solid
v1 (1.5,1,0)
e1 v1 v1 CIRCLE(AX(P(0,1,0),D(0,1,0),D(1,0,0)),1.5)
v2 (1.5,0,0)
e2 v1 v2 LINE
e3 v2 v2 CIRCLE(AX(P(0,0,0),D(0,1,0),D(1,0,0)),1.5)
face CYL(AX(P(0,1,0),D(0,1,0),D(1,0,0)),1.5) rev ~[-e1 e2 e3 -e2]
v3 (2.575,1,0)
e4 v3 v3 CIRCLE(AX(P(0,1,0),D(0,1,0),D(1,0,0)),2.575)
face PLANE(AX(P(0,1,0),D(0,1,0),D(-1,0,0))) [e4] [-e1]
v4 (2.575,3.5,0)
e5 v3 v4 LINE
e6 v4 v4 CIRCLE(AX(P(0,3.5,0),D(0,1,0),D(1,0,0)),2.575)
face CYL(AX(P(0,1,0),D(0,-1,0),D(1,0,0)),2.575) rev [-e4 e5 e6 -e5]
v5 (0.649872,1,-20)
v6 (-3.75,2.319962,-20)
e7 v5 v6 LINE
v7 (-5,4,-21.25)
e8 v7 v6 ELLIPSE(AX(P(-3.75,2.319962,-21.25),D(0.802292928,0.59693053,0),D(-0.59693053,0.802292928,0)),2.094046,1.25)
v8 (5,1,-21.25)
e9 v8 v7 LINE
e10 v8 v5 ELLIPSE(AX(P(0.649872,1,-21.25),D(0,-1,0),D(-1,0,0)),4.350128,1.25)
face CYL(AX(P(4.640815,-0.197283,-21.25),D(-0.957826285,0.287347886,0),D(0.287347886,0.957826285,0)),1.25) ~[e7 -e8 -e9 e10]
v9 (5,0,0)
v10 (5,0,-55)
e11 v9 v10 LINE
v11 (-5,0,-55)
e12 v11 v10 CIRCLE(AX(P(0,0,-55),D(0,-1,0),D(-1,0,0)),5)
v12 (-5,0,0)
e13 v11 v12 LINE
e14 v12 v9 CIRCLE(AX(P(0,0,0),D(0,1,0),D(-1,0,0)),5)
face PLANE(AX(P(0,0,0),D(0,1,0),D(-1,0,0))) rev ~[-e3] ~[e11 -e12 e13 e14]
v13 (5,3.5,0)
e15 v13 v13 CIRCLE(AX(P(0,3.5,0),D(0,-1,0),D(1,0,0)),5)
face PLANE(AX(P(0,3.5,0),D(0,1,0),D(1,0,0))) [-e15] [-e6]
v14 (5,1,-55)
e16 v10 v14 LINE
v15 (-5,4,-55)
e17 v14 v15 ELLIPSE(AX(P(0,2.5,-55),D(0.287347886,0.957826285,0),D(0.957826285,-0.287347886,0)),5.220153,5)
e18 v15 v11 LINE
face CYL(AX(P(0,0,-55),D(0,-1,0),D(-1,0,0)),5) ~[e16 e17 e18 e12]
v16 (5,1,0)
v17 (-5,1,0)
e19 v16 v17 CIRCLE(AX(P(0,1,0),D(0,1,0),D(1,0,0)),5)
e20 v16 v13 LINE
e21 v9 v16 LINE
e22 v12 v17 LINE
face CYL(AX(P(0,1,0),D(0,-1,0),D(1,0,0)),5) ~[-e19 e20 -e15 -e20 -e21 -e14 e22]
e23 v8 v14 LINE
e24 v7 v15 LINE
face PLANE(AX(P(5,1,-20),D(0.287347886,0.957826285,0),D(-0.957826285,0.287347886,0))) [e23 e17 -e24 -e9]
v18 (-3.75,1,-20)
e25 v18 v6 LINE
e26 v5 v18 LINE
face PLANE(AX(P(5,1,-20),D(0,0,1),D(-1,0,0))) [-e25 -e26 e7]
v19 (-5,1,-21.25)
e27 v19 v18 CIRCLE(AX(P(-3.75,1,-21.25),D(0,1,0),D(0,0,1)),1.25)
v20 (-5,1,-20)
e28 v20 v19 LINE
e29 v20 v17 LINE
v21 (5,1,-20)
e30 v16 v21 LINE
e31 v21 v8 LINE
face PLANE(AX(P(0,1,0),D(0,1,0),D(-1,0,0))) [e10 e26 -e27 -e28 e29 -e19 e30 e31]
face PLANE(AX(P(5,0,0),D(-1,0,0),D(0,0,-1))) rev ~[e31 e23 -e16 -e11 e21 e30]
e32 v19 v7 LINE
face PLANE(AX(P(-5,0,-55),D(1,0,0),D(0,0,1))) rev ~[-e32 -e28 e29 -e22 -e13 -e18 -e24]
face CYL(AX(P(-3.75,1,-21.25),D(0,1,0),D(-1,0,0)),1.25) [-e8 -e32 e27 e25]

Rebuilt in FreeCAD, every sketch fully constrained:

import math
import FreeCAD as App
import Part
import Sketcher
from FreeCAD import Vector


def edges_at(feature, points):
    """Names of the edges that pass closest to the given points."""
    edges = feature.Shape.Edges
    near = lambda p: min(range(len(edges)), key=lambda i: edges[i].distToShape(Part.Vertex(*p))[0])
    return sorted({f"Edge{near(p) + 1}" for p in points})


def add_polygon(sketch, points):
    """Adds a closed chain of lines whose ends are joined by coincident constraints."""
    first, n = sketch.GeometryCount, len(points)
    for a, b in zip(points, points[1:] + points[:1]):
        sketch.addGeometry(Part.LineSegment(App.Vector(*a, 0), App.Vector(*b, 0)), False)
    for i in range(n):
        sketch.addConstraint(Sketcher.Constraint("Coincident", first + i, 2, first + (i + 1) % n, 1))

doc = App.newDocument("Part")
params = doc.addObject("Spreadsheet::Sheet", "Params")
for row, (alias, value) in enumerate([
    ("sketch1_radius", "5 mm"),
    ("sketch1_height", "55 mm"),
    ("pad1_length", "1 mm"),
    ("sketch2_diameter", "5.15 mm"),
    ("sketch2_diameter2", "10 mm"),
    ("pad2_length", "2.5 mm"),
    ("sketch3_diameter", "3 mm"),
    ("pocket1_length", "2.5 mm"),
    ("sketch4_radius", "5 mm"),
    ("sketch4_height", "35 mm"),
    ("pad3_length", "3 mm"),
    ("sketch5_width", "10 mm"),
    ("sketch5_height", "3 mm"),
    ("pocket2_length", "47 mm"),
    ("fillet_radius", "1.25 mm"),
], start=1):
    params.set(f"A{row}", alias)
    params.set(f"B{row}", "=" + value)
    params.setAlias(f"B{row}", alias)

body = doc.addObject("PartDesign::Body", "Body")

sketch1 = body.newObject("Sketcher::SketchObject", "Sketch")
sketch1.AttachmentSupport = (doc.getObject("XZ_Plane"), [""])
sketch1.MapMode = "FlatFace"
sketch1.addGeometry([
    Part.ArcOfCircle(Part.Circle(Vector(0, 0, 0), Vector(0, 0, 1), 5), math.radians(0), math.radians(180)),
    Part.LineSegment(Vector(5, 0, 0), Vector(5, -55, 0)),
    Part.ArcOfCircle(Part.Circle(Vector(0, -55, 0), Vector(0, 0, 1), 5), math.radians(180), math.radians(360)),
    Part.LineSegment(Vector(-5, -55, 0), Vector(-5, 0, 0)),
], False)
sketch1.addConstraint([
    Sketcher.Constraint("Tangent", 0, 1, 1, 1),
    Sketcher.Constraint("Tangent", 1, 2, 2, 2),
    Sketcher.Constraint("Tangent", 2, 1, 3, 1),
    Sketcher.Constraint("Tangent", 3, 2, 0, 2),
    Sketcher.Constraint("Vertical", 1),
    Sketcher.Constraint("Vertical", 3),
    Sketcher.Constraint("Coincident", 0, 3, -1, 1),
    Sketcher.Constraint("Radius", 0, 5.0),
    Sketcher.Constraint("DistanceY", 1, 2, 1, 1, 55.0),
])
sketch1.setExpression("Constraints[7]", "Params.sketch1_radius")
sketch1.setExpression("Constraints[8]", "Params.sketch1_height")
pad1 = body.newObject("PartDesign::Pad", "Pad")
pad1.Profile = sketch1
pad1.setExpression("Length", "Params.pad1_length")
pad1.Reversed = True

sketch2 = body.newObject("Sketcher::SketchObject", "Sketch001")
sketch2.AttachmentSupport = (doc.getObject("XZ_Plane"), [""])
sketch2.MapMode = "FlatFace"
sketch2.AttachmentOffset = App.Placement(Vector(0, 0, -1), App.Rotation())
sketch2.addGeometry([
    Part.Circle(Vector(0, 0, 0), Vector(0, 0, 1), 5),
    Part.Circle(Vector(0, 0, 0), Vector(0, 0, 1), 2.575),
], False)
sketch2.addConstraint([
    Sketcher.Constraint("Coincident", 0, 3, -1, 1),
    Sketcher.Constraint("Coincident", 1, 3, -1, 1),
    Sketcher.Constraint("Diameter", 1, 5.15),
    Sketcher.Constraint("Diameter", 0, 10.0),
])
sketch2.setExpression("Constraints[2]", "Params.sketch2_diameter")
sketch2.setExpression("Constraints[3]", "Params.sketch2_diameter2")
pad2 = body.newObject("PartDesign::Pad", "Pad001")
pad2.Profile = sketch2
pad2.setExpression("Length", "Params.pad2_length")
pad2.Reversed = True

sketch3 = body.newObject("Sketcher::SketchObject", "Sketch002")
sketch3.AttachmentSupport = (doc.getObject("XZ_Plane"), [""])
sketch3.MapMode = "FlatFace"
sketch3.AttachmentOffset = App.Placement(Vector(0, 0, -1), App.Rotation())
sketch3.addGeometry(Part.Circle(Vector(0, 0, 0), Vector(0, 0, 1), 1.5), False)
sketch3.addConstraint([
    Sketcher.Constraint("Coincident", 0, 3, -1, 1),
    Sketcher.Constraint("Diameter", 0, 3.0),
])
sketch3.setExpression("Constraints[1]", "Params.sketch3_diameter")
pocket1 = body.newObject("PartDesign::Pocket", "Pocket")
pocket1.Profile = sketch3
pocket1.setExpression("Length", "Params.pocket1_length")
pocket1.Reversed = True

sketch4 = body.newObject("Sketcher::SketchObject", "Sketch003")
sketch4.AttachmentSupport = (doc.getObject("XZ_Plane"), [""])
sketch4.MapMode = "FlatFace"
sketch4.AttachmentOffset = App.Placement(Vector(0, 0, -1), App.Rotation())
sketch4.addGeometry([
    Part.ArcOfCircle(Part.Circle(Vector(0, -55, 0), Vector(0, 0, 1), 5), math.radians(180), math.radians(360)),
    Part.LineSegment(Vector(-5, -55, 0), Vector(-5, -20, 0)),
    Part.LineSegment(Vector(-5, -20, 0), Vector(5, -20, 0)),
    Part.LineSegment(Vector(5, -20, 0), Vector(5, -55, 0)),
], False)
sketch4.addConstraint([
    Sketcher.Constraint("Tangent", 0, 1, 1, 1),
    Sketcher.Constraint("Coincident", 1, 2, 2, 1),
    Sketcher.Constraint("Coincident", 2, 2, 3, 1),
    Sketcher.Constraint("Tangent", 3, 2, 0, 2),
    Sketcher.Constraint("Vertical", 1),
    Sketcher.Constraint("Horizontal", 2),
    Sketcher.Constraint("Vertical", 3),
    Sketcher.Constraint("PointOnObject", 0, 3, -2),
    Sketcher.Constraint("Radius", 0, 5.0),
    Sketcher.Constraint("DistanceY", 1, 1, 1, 2, 35.0),
    Sketcher.Constraint("DistanceY", 0, 3, -1, 1, 55.0),
])
sketch4.setExpression("Constraints[8]", "Params.sketch4_radius")
sketch4.setExpression("Constraints[9]", "Params.sketch4_height")
pad3 = body.newObject("PartDesign::Pad", "Pad002")
pad3.Profile = sketch4
pad3.setExpression("Length", "Params.pad3_length")
pad3.Reversed = True

sketch5 = body.newObject("Sketcher::SketchObject", "Sketch004")
sketch5.AttachmentSupport = (doc.getObject("XY_Plane"), [""])
sketch5.MapMode = "FlatFace"
sketch5.AttachmentOffset = App.Placement(Vector(0, 0, -20), App.Rotation())
add_polygon(sketch5, [(5, 4), (-5, 4), (5, 1)])
sketch5.addConstraint([
    Sketcher.Constraint("Horizontal", 0),
    Sketcher.Constraint("Vertical", 2),
    Sketcher.Constraint("DistanceX", 0, 2, 0, 1, 10.0),
    Sketcher.Constraint("DistanceY", 2, 1, 2, 2, 3.0),
    Sketcher.Constraint("DistanceX", 0, 2, -1, 1, 5.0),
    Sketcher.Constraint("DistanceY", -1, 1, 0, 2, 4.0),
])
sketch5.setExpression("Constraints[5]", "Params.sketch5_width")
sketch5.setExpression("Constraints[6]", "Params.sketch5_height")
pocket2 = body.newObject("PartDesign::Pocket", "Pocket001")
pocket2.Profile = sketch5
pocket2.setExpression("Length", "Params.pocket2_length")
doc.recompute()

fillet = body.newObject("PartDesign::Fillet", "Fillet")
fillet.Base = (pocket2, edges_at(pocket2, [(0, 2.5, -20), (-5, 2.5, -20)]))
fillet.setExpression("Radius", "Params.fillet_radius")

doc.recompute()
